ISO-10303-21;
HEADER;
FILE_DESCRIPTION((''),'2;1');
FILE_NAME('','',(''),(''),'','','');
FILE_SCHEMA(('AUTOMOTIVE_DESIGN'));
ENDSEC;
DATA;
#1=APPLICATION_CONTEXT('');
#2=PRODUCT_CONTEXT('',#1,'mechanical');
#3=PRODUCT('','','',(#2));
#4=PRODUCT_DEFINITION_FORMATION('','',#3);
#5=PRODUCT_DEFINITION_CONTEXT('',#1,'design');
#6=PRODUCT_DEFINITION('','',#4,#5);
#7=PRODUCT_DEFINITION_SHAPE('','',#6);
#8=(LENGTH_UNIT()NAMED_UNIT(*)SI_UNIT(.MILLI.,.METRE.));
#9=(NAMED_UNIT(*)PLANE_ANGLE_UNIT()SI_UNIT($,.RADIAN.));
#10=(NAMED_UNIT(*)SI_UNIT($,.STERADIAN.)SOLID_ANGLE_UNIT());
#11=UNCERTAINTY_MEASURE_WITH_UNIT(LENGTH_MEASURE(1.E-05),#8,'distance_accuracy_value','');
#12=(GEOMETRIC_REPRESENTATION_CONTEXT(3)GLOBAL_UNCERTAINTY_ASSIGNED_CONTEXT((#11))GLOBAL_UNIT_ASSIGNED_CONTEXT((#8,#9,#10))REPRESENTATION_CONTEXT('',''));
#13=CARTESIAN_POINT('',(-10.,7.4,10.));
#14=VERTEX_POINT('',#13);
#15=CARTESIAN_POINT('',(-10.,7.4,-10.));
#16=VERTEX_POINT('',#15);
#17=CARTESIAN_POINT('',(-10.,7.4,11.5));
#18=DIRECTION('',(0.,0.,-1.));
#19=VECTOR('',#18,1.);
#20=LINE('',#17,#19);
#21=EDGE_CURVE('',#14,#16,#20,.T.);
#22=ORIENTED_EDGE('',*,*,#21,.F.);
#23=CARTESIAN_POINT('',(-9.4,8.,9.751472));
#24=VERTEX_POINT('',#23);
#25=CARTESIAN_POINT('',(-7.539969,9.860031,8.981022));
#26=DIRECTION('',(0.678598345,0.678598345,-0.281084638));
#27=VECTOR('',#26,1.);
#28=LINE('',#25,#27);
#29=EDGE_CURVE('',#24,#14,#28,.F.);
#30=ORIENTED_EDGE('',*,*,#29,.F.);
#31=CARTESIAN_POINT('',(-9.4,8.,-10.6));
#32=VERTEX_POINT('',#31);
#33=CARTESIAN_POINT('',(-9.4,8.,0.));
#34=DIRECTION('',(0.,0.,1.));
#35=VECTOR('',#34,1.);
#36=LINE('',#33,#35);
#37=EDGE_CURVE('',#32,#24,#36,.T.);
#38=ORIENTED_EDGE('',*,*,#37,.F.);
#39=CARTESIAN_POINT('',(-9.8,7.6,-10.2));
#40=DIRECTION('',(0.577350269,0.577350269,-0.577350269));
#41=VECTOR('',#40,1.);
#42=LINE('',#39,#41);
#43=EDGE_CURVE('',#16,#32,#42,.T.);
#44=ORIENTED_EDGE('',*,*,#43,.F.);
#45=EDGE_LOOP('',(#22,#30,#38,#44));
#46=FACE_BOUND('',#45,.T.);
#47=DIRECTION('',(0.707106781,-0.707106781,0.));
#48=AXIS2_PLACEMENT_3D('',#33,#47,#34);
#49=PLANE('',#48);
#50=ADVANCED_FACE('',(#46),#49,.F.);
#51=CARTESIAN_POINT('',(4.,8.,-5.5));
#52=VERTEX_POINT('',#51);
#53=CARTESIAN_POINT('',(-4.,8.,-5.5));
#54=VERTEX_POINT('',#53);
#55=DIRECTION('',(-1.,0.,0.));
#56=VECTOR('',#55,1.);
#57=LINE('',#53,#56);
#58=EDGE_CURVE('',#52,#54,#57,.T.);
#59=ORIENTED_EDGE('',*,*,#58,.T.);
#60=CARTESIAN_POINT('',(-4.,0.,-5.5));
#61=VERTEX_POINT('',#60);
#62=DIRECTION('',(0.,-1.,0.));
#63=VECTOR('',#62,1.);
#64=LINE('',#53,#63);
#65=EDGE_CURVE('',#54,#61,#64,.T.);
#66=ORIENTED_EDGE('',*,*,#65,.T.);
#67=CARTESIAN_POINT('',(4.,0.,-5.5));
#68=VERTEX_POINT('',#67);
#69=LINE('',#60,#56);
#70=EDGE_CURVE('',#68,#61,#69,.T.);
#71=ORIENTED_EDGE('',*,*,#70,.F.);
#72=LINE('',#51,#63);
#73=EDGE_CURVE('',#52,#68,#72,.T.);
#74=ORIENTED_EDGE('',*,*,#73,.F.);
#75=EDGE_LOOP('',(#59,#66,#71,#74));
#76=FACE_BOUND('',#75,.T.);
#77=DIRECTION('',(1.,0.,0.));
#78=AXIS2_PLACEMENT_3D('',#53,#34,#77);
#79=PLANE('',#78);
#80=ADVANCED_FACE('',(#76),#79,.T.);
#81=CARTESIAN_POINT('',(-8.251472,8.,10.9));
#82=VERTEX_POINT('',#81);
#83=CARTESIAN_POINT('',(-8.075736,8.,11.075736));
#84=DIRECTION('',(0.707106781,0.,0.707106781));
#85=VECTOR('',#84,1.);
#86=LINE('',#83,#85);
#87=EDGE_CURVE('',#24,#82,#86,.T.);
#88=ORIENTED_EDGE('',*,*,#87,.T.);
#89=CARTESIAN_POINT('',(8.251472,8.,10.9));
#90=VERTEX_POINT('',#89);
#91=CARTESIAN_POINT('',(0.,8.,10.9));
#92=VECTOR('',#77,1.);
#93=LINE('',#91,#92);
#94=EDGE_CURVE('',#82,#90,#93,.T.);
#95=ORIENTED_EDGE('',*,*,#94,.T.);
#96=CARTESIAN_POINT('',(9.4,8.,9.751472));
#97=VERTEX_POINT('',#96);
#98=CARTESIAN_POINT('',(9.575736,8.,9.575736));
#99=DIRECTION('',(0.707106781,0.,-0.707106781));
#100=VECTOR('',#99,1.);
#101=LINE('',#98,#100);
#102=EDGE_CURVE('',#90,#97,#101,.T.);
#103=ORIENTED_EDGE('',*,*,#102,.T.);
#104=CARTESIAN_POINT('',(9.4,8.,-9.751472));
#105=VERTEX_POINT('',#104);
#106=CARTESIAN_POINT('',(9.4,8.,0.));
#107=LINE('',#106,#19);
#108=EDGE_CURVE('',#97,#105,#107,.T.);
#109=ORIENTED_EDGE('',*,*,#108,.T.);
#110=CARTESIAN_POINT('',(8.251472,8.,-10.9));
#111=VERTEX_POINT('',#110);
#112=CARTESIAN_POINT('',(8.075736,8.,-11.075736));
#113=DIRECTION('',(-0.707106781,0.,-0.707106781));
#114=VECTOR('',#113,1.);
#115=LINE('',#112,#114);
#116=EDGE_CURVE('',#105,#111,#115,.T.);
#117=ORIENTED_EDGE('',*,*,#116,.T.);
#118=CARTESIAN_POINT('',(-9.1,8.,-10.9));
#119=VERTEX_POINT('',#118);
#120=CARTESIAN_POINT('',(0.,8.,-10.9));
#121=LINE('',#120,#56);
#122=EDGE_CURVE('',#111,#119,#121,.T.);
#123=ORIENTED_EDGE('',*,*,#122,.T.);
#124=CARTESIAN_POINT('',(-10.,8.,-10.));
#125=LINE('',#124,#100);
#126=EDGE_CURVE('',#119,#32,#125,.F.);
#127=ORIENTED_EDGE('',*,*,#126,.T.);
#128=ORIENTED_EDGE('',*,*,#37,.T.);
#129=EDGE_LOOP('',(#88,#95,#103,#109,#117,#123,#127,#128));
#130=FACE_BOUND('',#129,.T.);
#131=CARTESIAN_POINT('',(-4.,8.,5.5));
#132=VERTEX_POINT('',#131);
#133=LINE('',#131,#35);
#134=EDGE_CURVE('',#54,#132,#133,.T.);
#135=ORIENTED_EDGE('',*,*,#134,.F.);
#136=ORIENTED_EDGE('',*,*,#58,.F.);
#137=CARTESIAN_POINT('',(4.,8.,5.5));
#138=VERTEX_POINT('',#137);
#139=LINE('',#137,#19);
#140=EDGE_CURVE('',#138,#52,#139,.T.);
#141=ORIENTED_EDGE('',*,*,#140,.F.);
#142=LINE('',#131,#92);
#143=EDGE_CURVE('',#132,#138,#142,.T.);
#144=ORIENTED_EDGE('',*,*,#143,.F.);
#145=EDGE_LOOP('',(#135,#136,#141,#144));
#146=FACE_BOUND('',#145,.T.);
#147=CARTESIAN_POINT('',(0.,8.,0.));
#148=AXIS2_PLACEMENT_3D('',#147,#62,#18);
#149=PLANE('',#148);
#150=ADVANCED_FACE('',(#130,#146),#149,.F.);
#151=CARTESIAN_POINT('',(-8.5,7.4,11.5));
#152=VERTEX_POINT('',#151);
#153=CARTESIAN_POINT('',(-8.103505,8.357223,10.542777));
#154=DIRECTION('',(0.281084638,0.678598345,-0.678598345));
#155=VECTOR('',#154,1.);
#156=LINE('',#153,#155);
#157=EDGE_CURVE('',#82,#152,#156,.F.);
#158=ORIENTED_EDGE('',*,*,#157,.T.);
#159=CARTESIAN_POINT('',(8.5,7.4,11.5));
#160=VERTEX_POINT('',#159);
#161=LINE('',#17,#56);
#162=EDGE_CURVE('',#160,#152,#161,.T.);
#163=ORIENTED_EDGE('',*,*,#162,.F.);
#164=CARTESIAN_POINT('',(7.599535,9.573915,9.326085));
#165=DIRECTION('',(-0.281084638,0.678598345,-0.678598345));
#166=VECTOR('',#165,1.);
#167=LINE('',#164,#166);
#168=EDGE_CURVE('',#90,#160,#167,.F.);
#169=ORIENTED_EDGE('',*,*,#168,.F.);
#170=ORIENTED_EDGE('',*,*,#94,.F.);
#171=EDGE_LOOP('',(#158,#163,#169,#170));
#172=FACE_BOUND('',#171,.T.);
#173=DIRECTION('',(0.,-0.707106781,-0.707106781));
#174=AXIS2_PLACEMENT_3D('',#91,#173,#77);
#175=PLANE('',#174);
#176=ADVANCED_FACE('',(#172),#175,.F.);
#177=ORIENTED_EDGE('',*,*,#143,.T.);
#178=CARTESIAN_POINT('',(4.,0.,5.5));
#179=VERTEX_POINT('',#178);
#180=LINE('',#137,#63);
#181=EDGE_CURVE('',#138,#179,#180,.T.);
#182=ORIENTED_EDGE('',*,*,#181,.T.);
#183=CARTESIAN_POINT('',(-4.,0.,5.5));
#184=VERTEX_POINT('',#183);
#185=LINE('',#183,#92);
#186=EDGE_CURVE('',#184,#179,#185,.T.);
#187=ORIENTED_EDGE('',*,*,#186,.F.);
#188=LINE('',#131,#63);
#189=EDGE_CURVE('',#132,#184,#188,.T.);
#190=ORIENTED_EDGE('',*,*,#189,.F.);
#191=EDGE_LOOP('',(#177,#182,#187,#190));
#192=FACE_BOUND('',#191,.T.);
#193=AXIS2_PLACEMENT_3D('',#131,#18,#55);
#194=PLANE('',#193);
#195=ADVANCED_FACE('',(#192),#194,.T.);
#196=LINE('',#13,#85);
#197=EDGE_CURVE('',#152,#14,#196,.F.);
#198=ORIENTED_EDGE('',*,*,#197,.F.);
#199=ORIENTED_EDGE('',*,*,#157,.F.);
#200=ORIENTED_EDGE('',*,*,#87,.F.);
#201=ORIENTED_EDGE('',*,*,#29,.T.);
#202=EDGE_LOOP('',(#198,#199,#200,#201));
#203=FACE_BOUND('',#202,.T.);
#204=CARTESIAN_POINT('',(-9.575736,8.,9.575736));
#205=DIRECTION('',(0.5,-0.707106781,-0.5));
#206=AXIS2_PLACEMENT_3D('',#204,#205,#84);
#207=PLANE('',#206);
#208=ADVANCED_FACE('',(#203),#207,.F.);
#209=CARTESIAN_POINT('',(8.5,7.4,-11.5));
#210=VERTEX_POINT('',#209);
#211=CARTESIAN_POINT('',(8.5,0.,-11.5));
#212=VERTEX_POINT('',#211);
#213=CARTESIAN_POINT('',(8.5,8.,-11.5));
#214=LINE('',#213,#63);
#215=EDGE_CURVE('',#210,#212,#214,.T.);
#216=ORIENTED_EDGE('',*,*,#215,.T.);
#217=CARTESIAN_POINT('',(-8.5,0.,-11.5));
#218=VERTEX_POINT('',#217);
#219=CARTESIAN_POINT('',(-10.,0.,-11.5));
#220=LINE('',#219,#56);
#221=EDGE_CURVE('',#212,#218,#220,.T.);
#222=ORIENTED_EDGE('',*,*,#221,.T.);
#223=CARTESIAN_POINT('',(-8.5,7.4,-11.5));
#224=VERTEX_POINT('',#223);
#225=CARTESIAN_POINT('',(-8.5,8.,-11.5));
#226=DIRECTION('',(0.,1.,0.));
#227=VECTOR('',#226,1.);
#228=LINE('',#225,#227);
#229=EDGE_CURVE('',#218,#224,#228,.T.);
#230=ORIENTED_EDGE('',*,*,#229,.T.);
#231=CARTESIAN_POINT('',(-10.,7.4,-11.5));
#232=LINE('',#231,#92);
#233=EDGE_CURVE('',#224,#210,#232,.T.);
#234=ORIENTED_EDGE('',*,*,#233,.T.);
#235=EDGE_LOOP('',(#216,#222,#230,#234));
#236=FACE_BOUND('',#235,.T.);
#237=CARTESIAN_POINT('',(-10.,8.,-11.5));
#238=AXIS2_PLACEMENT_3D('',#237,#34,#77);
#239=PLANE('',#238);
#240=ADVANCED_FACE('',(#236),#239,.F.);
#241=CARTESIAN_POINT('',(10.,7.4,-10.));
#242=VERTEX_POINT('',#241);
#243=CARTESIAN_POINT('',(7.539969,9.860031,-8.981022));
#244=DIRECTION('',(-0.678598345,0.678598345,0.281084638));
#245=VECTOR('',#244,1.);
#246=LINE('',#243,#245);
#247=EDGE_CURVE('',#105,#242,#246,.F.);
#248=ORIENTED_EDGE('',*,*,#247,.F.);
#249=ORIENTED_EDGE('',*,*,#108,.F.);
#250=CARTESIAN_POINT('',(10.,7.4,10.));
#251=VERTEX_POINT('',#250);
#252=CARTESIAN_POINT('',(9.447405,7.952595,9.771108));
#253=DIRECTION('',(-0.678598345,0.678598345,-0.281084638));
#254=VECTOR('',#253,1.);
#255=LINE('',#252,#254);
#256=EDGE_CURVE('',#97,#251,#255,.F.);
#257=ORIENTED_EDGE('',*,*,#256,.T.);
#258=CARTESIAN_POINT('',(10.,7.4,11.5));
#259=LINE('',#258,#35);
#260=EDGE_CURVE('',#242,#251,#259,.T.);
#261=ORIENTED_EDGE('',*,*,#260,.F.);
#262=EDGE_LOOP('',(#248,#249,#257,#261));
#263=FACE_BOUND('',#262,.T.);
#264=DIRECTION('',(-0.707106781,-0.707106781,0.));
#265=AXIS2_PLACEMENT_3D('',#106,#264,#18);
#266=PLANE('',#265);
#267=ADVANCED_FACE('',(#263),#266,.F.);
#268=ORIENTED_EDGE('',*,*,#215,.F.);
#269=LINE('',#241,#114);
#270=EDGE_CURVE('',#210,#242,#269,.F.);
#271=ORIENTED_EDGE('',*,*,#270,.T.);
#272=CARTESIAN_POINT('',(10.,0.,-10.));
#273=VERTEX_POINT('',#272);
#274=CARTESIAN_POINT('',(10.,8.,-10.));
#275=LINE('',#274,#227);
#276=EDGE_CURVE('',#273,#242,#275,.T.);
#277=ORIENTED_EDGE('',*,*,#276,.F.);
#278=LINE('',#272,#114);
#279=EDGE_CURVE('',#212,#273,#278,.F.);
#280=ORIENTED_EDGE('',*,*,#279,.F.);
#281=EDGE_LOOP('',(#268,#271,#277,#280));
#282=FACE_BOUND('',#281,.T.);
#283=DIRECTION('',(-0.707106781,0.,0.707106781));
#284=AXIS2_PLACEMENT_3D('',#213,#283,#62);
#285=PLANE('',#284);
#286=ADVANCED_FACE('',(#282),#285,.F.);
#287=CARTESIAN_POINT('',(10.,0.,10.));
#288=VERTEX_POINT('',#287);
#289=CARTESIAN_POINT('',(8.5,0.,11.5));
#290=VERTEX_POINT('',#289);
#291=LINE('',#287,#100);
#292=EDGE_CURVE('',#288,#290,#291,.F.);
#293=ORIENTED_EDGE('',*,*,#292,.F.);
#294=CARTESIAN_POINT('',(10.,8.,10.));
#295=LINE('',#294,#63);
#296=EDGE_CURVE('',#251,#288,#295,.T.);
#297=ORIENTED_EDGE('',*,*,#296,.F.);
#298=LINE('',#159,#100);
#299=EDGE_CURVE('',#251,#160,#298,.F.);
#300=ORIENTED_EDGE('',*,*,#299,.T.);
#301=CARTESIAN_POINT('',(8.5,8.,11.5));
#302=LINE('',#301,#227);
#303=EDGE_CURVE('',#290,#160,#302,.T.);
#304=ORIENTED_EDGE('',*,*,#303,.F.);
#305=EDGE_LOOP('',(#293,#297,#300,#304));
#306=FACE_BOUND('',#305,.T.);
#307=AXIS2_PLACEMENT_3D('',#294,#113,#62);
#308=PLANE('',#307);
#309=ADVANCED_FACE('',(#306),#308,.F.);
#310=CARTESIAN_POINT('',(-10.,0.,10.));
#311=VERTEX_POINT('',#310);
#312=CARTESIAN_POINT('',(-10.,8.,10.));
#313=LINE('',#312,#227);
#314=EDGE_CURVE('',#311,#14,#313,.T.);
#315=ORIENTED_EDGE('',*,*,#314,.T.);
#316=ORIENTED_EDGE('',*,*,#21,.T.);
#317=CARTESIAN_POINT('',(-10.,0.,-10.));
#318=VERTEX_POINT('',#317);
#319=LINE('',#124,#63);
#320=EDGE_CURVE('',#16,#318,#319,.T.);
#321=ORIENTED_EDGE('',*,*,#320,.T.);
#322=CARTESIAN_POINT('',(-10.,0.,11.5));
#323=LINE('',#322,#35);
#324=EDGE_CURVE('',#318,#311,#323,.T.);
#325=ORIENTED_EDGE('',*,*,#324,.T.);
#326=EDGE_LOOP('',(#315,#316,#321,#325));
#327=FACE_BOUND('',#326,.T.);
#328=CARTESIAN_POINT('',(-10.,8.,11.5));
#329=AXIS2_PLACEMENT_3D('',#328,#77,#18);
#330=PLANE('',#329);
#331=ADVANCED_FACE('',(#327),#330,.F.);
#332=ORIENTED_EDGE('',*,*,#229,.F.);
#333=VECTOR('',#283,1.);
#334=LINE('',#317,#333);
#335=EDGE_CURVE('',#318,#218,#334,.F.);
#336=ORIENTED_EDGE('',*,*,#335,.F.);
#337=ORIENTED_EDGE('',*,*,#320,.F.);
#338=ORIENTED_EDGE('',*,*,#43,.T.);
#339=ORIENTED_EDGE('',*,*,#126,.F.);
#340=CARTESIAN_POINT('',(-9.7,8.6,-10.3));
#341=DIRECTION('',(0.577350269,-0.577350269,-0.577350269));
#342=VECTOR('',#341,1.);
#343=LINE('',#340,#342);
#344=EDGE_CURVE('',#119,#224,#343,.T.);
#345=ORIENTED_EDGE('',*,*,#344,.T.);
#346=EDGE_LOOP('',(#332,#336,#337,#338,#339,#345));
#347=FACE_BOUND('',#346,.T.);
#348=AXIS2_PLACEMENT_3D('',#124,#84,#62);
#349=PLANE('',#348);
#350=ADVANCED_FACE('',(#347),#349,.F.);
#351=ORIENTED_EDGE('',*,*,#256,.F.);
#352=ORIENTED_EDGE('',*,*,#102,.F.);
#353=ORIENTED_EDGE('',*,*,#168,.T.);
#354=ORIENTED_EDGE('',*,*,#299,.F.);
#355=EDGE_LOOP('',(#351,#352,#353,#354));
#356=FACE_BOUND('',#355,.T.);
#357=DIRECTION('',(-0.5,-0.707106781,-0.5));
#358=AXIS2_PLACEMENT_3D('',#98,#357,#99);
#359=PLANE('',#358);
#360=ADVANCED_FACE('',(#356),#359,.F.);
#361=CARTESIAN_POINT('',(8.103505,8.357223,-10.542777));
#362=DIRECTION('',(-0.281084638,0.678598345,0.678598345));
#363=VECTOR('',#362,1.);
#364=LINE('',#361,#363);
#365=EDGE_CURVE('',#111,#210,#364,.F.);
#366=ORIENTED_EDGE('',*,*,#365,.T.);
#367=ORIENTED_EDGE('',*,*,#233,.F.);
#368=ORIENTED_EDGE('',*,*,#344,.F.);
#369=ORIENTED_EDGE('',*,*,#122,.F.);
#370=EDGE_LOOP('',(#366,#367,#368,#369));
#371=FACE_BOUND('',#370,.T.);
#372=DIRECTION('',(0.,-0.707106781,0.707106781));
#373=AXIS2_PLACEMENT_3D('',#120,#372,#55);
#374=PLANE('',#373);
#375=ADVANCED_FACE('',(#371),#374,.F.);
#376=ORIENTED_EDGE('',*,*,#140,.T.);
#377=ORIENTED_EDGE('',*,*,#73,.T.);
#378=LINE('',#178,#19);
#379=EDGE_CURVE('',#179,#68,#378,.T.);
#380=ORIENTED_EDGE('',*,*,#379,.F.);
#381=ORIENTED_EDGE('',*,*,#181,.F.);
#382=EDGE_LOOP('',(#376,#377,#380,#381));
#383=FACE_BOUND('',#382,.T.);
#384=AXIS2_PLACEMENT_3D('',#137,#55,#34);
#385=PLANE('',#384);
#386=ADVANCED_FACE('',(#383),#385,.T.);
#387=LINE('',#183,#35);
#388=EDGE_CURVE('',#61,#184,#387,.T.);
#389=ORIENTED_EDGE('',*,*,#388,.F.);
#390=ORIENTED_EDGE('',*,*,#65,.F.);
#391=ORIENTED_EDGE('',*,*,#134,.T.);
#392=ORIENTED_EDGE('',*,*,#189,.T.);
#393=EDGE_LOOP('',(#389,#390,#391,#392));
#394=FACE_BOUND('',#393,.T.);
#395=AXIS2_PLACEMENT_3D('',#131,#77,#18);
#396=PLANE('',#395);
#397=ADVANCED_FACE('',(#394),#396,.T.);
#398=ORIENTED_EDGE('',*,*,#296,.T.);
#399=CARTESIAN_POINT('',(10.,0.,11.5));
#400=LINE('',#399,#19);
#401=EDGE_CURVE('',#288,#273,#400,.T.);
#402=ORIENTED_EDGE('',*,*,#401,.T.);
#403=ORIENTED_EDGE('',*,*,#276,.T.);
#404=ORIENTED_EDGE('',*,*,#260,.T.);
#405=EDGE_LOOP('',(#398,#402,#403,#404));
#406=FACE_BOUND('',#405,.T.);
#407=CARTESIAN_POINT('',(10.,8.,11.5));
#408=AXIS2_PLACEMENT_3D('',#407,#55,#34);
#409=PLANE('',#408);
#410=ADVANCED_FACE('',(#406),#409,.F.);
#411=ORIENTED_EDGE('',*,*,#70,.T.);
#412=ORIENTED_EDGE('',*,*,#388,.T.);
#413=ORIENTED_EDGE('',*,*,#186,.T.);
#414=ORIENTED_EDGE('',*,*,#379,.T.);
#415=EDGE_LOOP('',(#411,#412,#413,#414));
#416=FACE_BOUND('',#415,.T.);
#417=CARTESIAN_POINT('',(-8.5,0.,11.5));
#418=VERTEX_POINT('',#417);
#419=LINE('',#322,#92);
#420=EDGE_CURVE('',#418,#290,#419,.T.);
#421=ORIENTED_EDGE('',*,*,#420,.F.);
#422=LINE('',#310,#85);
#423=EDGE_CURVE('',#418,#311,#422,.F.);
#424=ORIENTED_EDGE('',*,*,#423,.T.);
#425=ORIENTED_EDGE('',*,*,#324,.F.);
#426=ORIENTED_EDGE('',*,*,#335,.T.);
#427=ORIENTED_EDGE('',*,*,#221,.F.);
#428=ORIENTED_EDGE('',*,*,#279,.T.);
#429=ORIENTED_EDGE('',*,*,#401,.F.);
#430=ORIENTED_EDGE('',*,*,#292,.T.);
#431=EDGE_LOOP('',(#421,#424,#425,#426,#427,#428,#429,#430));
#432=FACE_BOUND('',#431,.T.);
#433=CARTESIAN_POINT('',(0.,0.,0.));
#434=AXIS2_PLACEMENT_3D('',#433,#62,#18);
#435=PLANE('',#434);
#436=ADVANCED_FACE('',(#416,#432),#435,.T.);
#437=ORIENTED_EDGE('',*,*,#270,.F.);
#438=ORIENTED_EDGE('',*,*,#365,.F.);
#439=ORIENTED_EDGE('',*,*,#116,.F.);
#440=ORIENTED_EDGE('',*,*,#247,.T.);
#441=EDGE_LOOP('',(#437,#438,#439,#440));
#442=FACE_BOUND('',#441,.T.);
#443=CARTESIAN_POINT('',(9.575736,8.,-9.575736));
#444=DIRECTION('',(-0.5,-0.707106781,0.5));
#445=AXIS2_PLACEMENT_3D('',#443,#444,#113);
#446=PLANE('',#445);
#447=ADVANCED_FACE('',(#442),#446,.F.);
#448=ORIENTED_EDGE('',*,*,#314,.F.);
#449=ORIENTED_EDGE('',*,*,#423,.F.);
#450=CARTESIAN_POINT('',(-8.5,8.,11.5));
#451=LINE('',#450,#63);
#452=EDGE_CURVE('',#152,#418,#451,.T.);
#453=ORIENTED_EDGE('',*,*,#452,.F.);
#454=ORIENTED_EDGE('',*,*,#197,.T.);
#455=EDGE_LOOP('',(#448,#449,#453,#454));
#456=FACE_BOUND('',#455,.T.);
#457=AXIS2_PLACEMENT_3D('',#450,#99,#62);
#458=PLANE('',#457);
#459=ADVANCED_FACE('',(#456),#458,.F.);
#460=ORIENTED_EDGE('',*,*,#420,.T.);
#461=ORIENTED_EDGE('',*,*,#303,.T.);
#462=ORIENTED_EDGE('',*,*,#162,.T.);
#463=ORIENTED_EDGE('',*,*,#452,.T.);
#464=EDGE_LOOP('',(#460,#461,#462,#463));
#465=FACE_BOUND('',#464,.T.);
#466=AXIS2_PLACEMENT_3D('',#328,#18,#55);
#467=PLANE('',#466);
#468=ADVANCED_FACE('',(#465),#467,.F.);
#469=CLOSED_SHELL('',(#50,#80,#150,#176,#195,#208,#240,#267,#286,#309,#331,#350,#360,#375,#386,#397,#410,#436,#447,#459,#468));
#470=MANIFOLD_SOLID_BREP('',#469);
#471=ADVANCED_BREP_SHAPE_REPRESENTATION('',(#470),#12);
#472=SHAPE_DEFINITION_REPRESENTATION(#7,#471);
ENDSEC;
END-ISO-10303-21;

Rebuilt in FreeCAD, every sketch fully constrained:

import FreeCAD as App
import Part
import Sketcher


def edges_at(feature, points):
    """Names of the edges that pass closest to the given points."""
    edges = feature.Shape.Edges
    near = lambda p: min(range(len(edges)), key=lambda i: edges[i].distToShape(Part.Vertex(*p))[0])
    return sorted({f"Edge{near(p) + 1}" for p in points})

doc = App.newDocument("Part")
body = doc.addObject("PartDesign::Body", "Body")

# Sketch on XZ plane
sketch1 = doc.addObject("Sketcher::SketchObject", "Sketch")
body.addObject(sketch1)
sketch1.AttachmentSupport = (doc.XZ_Plane, [""])
sketch1.MapMode = "FlatFace"
sketch1.addGeometry(Part.LineSegment(App.Vector(-10, -12, 0), App.Vector(-10, 12, 0)), False)
sketch1.addGeometry(Part.LineSegment(App.Vector(-10, 12, 0), App.Vector(10, 12, 0)), False)
sketch1.addGeometry(Part.LineSegment(App.Vector(10, 12, 0), App.Vector(10, -12, 0)), False)
sketch1.addGeometry(Part.LineSegment(App.Vector(10, -12, 0), App.Vector(-10, -12, 0)), False)
sketch1.addGeometry(Part.LineSegment(App.Vector(4, 6, 0), App.Vector(-4, 6, 0)), False)
sketch1.addGeometry(Part.LineSegment(App.Vector(-4, 6, 0), App.Vector(-4, -6, 0)), False)
sketch1.addGeometry(Part.LineSegment(App.Vector(-4, -6, 0), App.Vector(4, -6, 0)), False)
sketch1.addGeometry(Part.LineSegment(App.Vector(4, -6, 0), App.Vector(4, 6, 0)), False)
sketch1.addConstraint(Sketcher.Constraint("Coincident", 0, 2, 1, 1))
sketch1.addConstraint(Sketcher.Constraint("Coincident", 1, 2, 2, 1))
sketch1.addConstraint(Sketcher.Constraint("Coincident", 2, 2, 3, 1))
sketch1.addConstraint(Sketcher.Constraint("Coincident", 3, 2, 0, 1))
sketch1.addConstraint(Sketcher.Constraint("Coincident", 4, 2, 5, 1))
sketch1.addConstraint(Sketcher.Constraint("Coincident", 5, 2, 6, 1))
sketch1.addConstraint(Sketcher.Constraint("Coincident", 6, 2, 7, 1))
sketch1.addConstraint(Sketcher.Constraint("Coincident", 7, 2, 4, 1))
sketch1.addConstraint(Sketcher.Constraint("Vertical", 0))
sketch1.addConstraint(Sketcher.Constraint("Horizontal", 1))
sketch1.addConstraint(Sketcher.Constraint("Vertical", 2))
sketch1.addConstraint(Sketcher.Constraint("Horizontal", 3))
sketch1.addConstraint(Sketcher.Constraint("Horizontal", 4))
sketch1.addConstraint(Sketcher.Constraint("Vertical", 5))
sketch1.addConstraint(Sketcher.Constraint("Horizontal", 6))
sketch1.addConstraint(Sketcher.Constraint("Vertical", 7))
sketch1.addConstraint(Sketcher.Constraint("Symmetric", 0, 2, 2, 2, -1, 1))
sketch1.addConstraint(Sketcher.Constraint("Symmetric", 4, 2, 6, 2, -1, 1))
sketch1.addConstraint(Sketcher.Constraint("DistanceX", 1, 1, 1, 2, 20.0))
sketch1.addConstraint(Sketcher.Constraint("DistanceX", 4, 2, 4, 1, 8.0))
sketch1.addConstraint(Sketcher.Constraint("DistanceY", 0, 1, 0, 2, 23.0))
sketch1.addConstraint(Sketcher.Constraint("DistanceY", 5, 2, 5, 1, 11.0))
pad1 = doc.addObject("PartDesign::Pad", "Pad")
body.addObject(pad1)
pad1.Profile = sketch1
pad1.Length = 8
pad1.Reversed = True
doc.recompute()

chamfer = doc.addObject("PartDesign::Chamfer", "Chamfer")
body.addObject(chamfer)
chamfer.Base = (pad1, edges_at(pad1, [
    (-10, 4, -11.5),
    (10, 4, -11.5),
    (10, 4, 11.5),
    (-10, 4, 11.5),
]))
chamfer.Size = 1.5
doc.recompute()

chamfer2 = doc.addObject("PartDesign::Chamfer", "Chamfer001")
body.addObject(chamfer2)
chamfer2.Base = (chamfer, edges_at(chamfer, [
    (10, 8, 0),
    (0, 8, 11.5),
    (-10, 8, 0),
    (0, 8, -11.5),
    (-9.25, 8, 10.75),
    (9.25, 8, -10.75),
    (9.25, 8, 10.75),
]))
chamfer2.Size = 0.6

doc.recompute()
